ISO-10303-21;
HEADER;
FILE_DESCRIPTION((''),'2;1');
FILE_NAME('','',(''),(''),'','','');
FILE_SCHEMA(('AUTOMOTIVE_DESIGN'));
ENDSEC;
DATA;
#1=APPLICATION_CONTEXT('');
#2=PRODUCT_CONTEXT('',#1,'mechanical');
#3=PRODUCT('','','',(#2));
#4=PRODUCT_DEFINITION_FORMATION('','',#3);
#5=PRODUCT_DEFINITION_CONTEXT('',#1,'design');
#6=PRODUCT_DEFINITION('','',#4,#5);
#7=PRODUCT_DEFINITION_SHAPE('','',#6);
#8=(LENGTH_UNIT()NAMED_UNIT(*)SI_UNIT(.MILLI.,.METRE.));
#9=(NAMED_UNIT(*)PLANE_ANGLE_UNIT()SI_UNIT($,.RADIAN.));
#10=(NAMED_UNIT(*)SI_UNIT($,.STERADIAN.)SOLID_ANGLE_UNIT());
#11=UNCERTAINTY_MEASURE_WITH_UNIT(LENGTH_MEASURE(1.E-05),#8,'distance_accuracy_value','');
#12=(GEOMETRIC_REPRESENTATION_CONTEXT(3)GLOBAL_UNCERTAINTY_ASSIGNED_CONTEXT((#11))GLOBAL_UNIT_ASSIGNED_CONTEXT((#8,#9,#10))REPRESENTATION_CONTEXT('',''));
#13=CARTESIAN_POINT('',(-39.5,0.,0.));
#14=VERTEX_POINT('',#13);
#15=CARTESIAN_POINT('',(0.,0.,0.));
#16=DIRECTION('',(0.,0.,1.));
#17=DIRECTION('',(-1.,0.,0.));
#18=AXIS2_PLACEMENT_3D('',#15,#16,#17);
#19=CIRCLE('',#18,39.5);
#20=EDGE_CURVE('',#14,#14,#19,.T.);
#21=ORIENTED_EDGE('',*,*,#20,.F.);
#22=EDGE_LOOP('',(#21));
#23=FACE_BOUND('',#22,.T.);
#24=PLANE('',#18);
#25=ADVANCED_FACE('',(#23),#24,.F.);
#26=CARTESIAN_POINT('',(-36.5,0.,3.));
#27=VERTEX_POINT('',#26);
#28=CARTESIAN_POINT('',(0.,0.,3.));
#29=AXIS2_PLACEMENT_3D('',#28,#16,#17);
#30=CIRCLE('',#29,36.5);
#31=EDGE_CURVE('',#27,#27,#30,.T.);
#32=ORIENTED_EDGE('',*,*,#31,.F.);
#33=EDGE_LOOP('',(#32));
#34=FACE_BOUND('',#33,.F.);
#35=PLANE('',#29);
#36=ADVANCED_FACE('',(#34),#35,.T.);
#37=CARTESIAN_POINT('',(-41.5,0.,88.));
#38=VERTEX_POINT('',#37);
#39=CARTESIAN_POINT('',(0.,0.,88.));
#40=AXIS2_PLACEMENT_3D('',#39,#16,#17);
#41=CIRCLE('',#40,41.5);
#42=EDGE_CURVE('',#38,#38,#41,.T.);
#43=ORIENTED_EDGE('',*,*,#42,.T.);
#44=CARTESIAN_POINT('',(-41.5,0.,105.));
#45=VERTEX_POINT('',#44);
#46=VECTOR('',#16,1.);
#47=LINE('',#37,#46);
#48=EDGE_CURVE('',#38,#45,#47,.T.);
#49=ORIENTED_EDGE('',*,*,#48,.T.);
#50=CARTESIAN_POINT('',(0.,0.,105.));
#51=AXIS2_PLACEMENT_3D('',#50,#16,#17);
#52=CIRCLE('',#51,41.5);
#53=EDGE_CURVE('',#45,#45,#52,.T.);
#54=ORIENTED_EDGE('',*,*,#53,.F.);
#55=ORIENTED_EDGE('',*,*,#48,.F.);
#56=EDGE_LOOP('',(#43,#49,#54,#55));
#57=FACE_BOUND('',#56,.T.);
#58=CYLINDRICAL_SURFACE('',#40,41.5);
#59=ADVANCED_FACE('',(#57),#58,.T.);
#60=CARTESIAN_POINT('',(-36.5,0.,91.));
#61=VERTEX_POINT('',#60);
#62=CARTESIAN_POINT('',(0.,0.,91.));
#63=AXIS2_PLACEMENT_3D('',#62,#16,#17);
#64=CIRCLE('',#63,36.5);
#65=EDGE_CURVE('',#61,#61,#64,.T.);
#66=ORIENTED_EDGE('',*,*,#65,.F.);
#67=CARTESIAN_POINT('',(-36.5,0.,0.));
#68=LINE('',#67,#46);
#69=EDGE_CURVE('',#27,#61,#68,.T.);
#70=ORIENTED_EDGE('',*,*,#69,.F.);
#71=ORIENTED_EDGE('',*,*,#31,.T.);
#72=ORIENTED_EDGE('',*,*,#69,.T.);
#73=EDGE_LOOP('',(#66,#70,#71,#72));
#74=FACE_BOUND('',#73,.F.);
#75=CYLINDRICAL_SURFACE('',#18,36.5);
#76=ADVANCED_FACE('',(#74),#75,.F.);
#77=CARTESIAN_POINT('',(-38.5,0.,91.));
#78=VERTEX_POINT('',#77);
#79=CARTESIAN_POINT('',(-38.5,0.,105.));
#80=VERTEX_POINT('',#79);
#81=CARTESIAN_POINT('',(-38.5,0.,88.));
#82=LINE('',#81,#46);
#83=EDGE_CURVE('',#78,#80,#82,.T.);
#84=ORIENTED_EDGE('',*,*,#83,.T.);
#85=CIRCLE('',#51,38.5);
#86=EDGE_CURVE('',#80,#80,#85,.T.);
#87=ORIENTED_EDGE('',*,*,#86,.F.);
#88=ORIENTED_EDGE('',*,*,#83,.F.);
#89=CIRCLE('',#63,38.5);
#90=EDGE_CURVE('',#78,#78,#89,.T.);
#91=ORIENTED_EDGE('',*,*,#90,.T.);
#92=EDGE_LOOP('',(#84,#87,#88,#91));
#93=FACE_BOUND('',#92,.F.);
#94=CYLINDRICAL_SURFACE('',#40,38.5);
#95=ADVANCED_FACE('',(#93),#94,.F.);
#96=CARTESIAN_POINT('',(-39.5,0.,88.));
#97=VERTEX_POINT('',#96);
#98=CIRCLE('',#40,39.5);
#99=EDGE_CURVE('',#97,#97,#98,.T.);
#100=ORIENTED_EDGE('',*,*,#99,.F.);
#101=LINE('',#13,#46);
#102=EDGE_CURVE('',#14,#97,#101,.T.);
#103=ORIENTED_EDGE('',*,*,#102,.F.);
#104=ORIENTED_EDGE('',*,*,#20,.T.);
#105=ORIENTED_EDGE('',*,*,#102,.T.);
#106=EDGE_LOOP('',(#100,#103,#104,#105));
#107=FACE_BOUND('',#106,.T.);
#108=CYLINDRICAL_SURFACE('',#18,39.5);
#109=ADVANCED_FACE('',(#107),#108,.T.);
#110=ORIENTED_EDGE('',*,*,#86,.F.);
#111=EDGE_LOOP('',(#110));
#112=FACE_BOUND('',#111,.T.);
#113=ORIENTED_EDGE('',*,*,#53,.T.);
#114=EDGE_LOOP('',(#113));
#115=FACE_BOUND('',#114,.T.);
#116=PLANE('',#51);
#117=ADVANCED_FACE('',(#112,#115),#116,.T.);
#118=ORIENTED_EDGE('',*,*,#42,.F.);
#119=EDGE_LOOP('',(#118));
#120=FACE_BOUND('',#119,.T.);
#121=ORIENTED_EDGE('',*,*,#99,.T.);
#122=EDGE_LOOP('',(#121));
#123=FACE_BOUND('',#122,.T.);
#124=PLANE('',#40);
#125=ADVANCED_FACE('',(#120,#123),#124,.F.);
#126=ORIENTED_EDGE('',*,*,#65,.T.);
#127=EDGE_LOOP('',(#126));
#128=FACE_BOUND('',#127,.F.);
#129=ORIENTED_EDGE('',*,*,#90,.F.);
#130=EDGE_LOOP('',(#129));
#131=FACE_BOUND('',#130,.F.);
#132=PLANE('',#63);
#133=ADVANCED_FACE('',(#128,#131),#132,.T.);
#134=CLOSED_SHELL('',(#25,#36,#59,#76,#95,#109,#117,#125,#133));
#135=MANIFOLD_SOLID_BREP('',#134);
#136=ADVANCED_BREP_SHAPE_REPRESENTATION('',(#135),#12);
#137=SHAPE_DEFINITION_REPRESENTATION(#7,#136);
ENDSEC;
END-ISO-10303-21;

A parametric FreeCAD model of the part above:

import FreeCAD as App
import Part
import Sketcher

V = App.Vector


def faces_at(feature, points):
    """Names of the faces that lie closest to the given points."""
    faces = feature.Shape.Faces
    near = lambda p: min(range(len(faces)), key=lambda i: faces[i].distToShape(Part.Vertex(*p))[0])
    return sorted({f"Face{near(p) + 1}" for p in points})


def add_polygon(sketch, points):
    """Adds a closed chain of lines whose ends are joined by coincident constraints."""
    first, n = sketch.GeometryCount, len(points)
    for a, b in zip(points, points[1:] + points[:1]):
        sketch.addGeometry(Part.LineSegment(App.Vector(*a, 0), App.Vector(*b, 0)), False)
    for i in range(n):
        sketch.addConstraint(Sketcher.Constraint("Coincident", first + i, 2, first + (i + 1) % n, 1))

doc = App.newDocument("Part")
body = doc.addObject("PartDesign::Body", "Body")

sketch1 = body.newObject("Sketcher::SketchObject", "Sketch")
sketch1.AttachmentSupport = (doc.getObject("XZ_Plane"), [""])
sketch1.MapMode = "FlatFace"
add_polygon(sketch1, [(-39.5, 0), (0, 0), (0, 105), (-41.5, 105), (-41.5, 88), (-39.5, 88)])
sketch1.addConstraint([
    Sketcher.Constraint("Horizontal", 0),
    Sketcher.Constraint("Vertical", 1),
    Sketcher.Constraint("Horizontal", 2),
    Sketcher.Constraint("Vertical", 3),
    Sketcher.Constraint("Horizontal", 4),
    Sketcher.Constraint("Vertical", 5),
    Sketcher.Constraint("Coincident", 0, 2, -1, 1),
    Sketcher.Constraint("DistanceX", 4, 1, 4, 2, 2.0),
    Sketcher.Constraint("DistanceY", 1, 1, 1, 2, 105.0),
    Sketcher.Constraint("DistanceY", 3, 2, 3, 1, 17.0),
    Sketcher.Constraint("DistanceX", 0, 1, 0, 2, 39.5),
])
revolution = body.newObject("PartDesign::Revolution", "Revolution")
revolution.Profile = sketch1
revolution.ReferenceAxis = (sketch1, ["V_Axis"])
revolution.Angle = 360
doc.recompute()

thickness = body.newObject("PartDesign::Thickness", "Thickness")
thickness.Base = (revolution, faces_at(revolution, [(0, 0, 105)]))
thickness.Value = 3
thickness.Reversed = True
thickness.Join = "Intersection"

doc.recompute()
